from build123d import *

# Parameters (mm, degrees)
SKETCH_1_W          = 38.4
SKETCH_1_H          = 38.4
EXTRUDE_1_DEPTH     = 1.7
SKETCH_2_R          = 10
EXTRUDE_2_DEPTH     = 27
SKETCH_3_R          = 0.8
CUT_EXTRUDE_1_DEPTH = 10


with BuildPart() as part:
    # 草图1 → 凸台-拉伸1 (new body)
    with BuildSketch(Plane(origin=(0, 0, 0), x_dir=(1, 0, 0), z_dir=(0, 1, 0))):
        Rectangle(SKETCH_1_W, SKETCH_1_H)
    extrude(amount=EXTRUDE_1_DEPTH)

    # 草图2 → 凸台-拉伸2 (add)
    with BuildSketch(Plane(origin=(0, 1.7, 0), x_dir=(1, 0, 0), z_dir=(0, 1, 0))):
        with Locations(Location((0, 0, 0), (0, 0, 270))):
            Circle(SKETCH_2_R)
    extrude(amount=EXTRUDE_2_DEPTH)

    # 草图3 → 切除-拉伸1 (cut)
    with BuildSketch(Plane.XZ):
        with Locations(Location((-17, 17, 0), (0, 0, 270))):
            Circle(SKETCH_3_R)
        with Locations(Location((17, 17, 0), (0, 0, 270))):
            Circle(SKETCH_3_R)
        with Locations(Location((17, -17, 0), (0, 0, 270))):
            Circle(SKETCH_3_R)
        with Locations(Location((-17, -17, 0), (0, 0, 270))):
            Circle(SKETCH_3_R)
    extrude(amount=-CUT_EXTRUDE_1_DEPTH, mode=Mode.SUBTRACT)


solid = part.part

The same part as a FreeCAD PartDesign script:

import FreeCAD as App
import Part
import Sketcher

V = App.Vector

doc = App.newDocument("Part")
body = doc.addObject("PartDesign::Body", "Body")

sketch1 = doc.addObject("Sketcher::SketchObject", "Sketch")
body.addObject(sketch1)
sketch1.AttachmentSupport = (doc.XZ_Plane, [""])
sketch1.MapMode = "FlatFace"
sketch1.addGeometry(Part.LineSegment(V(-19, -19, 0), V(-19, 19, 0)), False)
sketch1.addGeometry(Part.LineSegment(V(-19, 19, 0), V(19, 19, 0)), False)
sketch1.addGeometry(Part.LineSegment(V(19, 19, 0), V(19, -19, 0)), False)
sketch1.addGeometry(Part.LineSegment(V(19, -19, 0), V(-19, -19, 0)), False)
sketch1.addConstraint(Sketcher.Constraint("Coincident", 0, 2, 1, 1))
sketch1.addConstraint(Sketcher.Constraint("Coincident", 1, 2, 2, 1))
sketch1.addConstraint(Sketcher.Constraint("Coincident", 2, 2, 3, 1))
sketch1.addConstraint(Sketcher.Constraint("Coincident", 3, 2, 0, 1))
sketch1.addConstraint(Sketcher.Constraint("Vertical", 0))
sketch1.addConstraint(Sketcher.Constraint("Horizontal", 1))
sketch1.addConstraint(Sketcher.Constraint("Vertical", 2))
sketch1.addConstraint(Sketcher.Constraint("Horizontal", 3))
sketch1.addConstraint(Sketcher.Constraint("Symmetric", 0, 2, 2, 2, -1, 1))
sketch1.addConstraint(Sketcher.Constraint("Equal", 3, 0))
sketch1.addConstraint(Sketcher.Constraint("DistanceX", 1, 1, 1, 2, 38.4))
pad1 = doc.addObject("PartDesign::Pad", "Pad")
body.addObject(pad1)
pad1.Profile = sketch1
pad1.Length = 1.7
pad1.Reversed = True

sketch2 = doc.addObject("Sketcher::SketchObject", "Sketch001")
body.addObject(sketch2)
sketch2.AttachmentSupport = (doc.XZ_Plane, [""])
sketch2.MapMode = "FlatFace"
sketch2.AttachmentOffset = App.Placement(V(0, 0, -1.7), App.Rotation())
sketch2.addGeometry(Part.Circle(V(0, 0, 0), V(0, 0, 1), 10), False)
sketch2.addConstraint(Sketcher.Constraint("Coincident", 0, 3, -1, 1))
sketch2.addConstraint(Sketcher.Constraint("Diameter", 0, 20.0))
pad2 = doc.addObject("PartDesign::Pad", "Pad001")
body.addObject(pad2)
pad2.Profile = sketch2
pad2.Length = 27
pad2.Reversed = True

sketch3 = doc.addObject("Sketcher::SketchObject", "Sketch002")
body.addObject(sketch3)
sketch3.AttachmentSupport = (doc.XZ_Plane, [""])
sketch3.MapMode = "FlatFace"
sketch3.addGeometry(Part.Circle(V(-17, 17, 0), V(0, 0, 1), 0.8), False)
sketch3.addGeometry(Part.Circle(V(17, 17, 0), V(0, 0, 1), 0.8), False)
sketch3.addGeometry(Part.Circle(V(17, -17, 0), V(0, 0, 1), 0.8), False)
sketch3.addGeometry(Part.Circle(V(-17, -17, 0), V(0, 0, 1), 0.8), False)
sketch3.addConstraint(Sketcher.Constraint("Equal", 0, 1))
sketch3.addConstraint(Sketcher.Constraint("Equal", 1, 2))
sketch3.addConstraint(Sketcher.Constraint("Equal", 2, 3))
sketch3.addConstraint(Sketcher.Constraint("Symmetric", 0, 3, 2, 3, -1, 1))
sketch3.addConstraint(Sketcher.Constraint("Symmetric", 1, 3, 3, 3, -1, 1))
sketch3.addConstraint(Sketcher.Constraint("Symmetric", 0, 3, 1, 3, -2))
sketch3.addConstraint(Sketcher.Constraint("Diameter", 0, 1.6))
sketch3.addConstraint(Sketcher.Constraint("DistanceX", 0, 3, -1, 1, 17.0))
sketch3.addConstraint(Sketcher.Constraint("DistanceY", -1, 1, 0, 3, 17.0))
pocket1 = doc.addObject("PartDesign::Pocket", "Pocket")
body.addObject(pocket1)
pocket1.Profile = sketch3
pocket1.Length = 10

doc.recompute()
